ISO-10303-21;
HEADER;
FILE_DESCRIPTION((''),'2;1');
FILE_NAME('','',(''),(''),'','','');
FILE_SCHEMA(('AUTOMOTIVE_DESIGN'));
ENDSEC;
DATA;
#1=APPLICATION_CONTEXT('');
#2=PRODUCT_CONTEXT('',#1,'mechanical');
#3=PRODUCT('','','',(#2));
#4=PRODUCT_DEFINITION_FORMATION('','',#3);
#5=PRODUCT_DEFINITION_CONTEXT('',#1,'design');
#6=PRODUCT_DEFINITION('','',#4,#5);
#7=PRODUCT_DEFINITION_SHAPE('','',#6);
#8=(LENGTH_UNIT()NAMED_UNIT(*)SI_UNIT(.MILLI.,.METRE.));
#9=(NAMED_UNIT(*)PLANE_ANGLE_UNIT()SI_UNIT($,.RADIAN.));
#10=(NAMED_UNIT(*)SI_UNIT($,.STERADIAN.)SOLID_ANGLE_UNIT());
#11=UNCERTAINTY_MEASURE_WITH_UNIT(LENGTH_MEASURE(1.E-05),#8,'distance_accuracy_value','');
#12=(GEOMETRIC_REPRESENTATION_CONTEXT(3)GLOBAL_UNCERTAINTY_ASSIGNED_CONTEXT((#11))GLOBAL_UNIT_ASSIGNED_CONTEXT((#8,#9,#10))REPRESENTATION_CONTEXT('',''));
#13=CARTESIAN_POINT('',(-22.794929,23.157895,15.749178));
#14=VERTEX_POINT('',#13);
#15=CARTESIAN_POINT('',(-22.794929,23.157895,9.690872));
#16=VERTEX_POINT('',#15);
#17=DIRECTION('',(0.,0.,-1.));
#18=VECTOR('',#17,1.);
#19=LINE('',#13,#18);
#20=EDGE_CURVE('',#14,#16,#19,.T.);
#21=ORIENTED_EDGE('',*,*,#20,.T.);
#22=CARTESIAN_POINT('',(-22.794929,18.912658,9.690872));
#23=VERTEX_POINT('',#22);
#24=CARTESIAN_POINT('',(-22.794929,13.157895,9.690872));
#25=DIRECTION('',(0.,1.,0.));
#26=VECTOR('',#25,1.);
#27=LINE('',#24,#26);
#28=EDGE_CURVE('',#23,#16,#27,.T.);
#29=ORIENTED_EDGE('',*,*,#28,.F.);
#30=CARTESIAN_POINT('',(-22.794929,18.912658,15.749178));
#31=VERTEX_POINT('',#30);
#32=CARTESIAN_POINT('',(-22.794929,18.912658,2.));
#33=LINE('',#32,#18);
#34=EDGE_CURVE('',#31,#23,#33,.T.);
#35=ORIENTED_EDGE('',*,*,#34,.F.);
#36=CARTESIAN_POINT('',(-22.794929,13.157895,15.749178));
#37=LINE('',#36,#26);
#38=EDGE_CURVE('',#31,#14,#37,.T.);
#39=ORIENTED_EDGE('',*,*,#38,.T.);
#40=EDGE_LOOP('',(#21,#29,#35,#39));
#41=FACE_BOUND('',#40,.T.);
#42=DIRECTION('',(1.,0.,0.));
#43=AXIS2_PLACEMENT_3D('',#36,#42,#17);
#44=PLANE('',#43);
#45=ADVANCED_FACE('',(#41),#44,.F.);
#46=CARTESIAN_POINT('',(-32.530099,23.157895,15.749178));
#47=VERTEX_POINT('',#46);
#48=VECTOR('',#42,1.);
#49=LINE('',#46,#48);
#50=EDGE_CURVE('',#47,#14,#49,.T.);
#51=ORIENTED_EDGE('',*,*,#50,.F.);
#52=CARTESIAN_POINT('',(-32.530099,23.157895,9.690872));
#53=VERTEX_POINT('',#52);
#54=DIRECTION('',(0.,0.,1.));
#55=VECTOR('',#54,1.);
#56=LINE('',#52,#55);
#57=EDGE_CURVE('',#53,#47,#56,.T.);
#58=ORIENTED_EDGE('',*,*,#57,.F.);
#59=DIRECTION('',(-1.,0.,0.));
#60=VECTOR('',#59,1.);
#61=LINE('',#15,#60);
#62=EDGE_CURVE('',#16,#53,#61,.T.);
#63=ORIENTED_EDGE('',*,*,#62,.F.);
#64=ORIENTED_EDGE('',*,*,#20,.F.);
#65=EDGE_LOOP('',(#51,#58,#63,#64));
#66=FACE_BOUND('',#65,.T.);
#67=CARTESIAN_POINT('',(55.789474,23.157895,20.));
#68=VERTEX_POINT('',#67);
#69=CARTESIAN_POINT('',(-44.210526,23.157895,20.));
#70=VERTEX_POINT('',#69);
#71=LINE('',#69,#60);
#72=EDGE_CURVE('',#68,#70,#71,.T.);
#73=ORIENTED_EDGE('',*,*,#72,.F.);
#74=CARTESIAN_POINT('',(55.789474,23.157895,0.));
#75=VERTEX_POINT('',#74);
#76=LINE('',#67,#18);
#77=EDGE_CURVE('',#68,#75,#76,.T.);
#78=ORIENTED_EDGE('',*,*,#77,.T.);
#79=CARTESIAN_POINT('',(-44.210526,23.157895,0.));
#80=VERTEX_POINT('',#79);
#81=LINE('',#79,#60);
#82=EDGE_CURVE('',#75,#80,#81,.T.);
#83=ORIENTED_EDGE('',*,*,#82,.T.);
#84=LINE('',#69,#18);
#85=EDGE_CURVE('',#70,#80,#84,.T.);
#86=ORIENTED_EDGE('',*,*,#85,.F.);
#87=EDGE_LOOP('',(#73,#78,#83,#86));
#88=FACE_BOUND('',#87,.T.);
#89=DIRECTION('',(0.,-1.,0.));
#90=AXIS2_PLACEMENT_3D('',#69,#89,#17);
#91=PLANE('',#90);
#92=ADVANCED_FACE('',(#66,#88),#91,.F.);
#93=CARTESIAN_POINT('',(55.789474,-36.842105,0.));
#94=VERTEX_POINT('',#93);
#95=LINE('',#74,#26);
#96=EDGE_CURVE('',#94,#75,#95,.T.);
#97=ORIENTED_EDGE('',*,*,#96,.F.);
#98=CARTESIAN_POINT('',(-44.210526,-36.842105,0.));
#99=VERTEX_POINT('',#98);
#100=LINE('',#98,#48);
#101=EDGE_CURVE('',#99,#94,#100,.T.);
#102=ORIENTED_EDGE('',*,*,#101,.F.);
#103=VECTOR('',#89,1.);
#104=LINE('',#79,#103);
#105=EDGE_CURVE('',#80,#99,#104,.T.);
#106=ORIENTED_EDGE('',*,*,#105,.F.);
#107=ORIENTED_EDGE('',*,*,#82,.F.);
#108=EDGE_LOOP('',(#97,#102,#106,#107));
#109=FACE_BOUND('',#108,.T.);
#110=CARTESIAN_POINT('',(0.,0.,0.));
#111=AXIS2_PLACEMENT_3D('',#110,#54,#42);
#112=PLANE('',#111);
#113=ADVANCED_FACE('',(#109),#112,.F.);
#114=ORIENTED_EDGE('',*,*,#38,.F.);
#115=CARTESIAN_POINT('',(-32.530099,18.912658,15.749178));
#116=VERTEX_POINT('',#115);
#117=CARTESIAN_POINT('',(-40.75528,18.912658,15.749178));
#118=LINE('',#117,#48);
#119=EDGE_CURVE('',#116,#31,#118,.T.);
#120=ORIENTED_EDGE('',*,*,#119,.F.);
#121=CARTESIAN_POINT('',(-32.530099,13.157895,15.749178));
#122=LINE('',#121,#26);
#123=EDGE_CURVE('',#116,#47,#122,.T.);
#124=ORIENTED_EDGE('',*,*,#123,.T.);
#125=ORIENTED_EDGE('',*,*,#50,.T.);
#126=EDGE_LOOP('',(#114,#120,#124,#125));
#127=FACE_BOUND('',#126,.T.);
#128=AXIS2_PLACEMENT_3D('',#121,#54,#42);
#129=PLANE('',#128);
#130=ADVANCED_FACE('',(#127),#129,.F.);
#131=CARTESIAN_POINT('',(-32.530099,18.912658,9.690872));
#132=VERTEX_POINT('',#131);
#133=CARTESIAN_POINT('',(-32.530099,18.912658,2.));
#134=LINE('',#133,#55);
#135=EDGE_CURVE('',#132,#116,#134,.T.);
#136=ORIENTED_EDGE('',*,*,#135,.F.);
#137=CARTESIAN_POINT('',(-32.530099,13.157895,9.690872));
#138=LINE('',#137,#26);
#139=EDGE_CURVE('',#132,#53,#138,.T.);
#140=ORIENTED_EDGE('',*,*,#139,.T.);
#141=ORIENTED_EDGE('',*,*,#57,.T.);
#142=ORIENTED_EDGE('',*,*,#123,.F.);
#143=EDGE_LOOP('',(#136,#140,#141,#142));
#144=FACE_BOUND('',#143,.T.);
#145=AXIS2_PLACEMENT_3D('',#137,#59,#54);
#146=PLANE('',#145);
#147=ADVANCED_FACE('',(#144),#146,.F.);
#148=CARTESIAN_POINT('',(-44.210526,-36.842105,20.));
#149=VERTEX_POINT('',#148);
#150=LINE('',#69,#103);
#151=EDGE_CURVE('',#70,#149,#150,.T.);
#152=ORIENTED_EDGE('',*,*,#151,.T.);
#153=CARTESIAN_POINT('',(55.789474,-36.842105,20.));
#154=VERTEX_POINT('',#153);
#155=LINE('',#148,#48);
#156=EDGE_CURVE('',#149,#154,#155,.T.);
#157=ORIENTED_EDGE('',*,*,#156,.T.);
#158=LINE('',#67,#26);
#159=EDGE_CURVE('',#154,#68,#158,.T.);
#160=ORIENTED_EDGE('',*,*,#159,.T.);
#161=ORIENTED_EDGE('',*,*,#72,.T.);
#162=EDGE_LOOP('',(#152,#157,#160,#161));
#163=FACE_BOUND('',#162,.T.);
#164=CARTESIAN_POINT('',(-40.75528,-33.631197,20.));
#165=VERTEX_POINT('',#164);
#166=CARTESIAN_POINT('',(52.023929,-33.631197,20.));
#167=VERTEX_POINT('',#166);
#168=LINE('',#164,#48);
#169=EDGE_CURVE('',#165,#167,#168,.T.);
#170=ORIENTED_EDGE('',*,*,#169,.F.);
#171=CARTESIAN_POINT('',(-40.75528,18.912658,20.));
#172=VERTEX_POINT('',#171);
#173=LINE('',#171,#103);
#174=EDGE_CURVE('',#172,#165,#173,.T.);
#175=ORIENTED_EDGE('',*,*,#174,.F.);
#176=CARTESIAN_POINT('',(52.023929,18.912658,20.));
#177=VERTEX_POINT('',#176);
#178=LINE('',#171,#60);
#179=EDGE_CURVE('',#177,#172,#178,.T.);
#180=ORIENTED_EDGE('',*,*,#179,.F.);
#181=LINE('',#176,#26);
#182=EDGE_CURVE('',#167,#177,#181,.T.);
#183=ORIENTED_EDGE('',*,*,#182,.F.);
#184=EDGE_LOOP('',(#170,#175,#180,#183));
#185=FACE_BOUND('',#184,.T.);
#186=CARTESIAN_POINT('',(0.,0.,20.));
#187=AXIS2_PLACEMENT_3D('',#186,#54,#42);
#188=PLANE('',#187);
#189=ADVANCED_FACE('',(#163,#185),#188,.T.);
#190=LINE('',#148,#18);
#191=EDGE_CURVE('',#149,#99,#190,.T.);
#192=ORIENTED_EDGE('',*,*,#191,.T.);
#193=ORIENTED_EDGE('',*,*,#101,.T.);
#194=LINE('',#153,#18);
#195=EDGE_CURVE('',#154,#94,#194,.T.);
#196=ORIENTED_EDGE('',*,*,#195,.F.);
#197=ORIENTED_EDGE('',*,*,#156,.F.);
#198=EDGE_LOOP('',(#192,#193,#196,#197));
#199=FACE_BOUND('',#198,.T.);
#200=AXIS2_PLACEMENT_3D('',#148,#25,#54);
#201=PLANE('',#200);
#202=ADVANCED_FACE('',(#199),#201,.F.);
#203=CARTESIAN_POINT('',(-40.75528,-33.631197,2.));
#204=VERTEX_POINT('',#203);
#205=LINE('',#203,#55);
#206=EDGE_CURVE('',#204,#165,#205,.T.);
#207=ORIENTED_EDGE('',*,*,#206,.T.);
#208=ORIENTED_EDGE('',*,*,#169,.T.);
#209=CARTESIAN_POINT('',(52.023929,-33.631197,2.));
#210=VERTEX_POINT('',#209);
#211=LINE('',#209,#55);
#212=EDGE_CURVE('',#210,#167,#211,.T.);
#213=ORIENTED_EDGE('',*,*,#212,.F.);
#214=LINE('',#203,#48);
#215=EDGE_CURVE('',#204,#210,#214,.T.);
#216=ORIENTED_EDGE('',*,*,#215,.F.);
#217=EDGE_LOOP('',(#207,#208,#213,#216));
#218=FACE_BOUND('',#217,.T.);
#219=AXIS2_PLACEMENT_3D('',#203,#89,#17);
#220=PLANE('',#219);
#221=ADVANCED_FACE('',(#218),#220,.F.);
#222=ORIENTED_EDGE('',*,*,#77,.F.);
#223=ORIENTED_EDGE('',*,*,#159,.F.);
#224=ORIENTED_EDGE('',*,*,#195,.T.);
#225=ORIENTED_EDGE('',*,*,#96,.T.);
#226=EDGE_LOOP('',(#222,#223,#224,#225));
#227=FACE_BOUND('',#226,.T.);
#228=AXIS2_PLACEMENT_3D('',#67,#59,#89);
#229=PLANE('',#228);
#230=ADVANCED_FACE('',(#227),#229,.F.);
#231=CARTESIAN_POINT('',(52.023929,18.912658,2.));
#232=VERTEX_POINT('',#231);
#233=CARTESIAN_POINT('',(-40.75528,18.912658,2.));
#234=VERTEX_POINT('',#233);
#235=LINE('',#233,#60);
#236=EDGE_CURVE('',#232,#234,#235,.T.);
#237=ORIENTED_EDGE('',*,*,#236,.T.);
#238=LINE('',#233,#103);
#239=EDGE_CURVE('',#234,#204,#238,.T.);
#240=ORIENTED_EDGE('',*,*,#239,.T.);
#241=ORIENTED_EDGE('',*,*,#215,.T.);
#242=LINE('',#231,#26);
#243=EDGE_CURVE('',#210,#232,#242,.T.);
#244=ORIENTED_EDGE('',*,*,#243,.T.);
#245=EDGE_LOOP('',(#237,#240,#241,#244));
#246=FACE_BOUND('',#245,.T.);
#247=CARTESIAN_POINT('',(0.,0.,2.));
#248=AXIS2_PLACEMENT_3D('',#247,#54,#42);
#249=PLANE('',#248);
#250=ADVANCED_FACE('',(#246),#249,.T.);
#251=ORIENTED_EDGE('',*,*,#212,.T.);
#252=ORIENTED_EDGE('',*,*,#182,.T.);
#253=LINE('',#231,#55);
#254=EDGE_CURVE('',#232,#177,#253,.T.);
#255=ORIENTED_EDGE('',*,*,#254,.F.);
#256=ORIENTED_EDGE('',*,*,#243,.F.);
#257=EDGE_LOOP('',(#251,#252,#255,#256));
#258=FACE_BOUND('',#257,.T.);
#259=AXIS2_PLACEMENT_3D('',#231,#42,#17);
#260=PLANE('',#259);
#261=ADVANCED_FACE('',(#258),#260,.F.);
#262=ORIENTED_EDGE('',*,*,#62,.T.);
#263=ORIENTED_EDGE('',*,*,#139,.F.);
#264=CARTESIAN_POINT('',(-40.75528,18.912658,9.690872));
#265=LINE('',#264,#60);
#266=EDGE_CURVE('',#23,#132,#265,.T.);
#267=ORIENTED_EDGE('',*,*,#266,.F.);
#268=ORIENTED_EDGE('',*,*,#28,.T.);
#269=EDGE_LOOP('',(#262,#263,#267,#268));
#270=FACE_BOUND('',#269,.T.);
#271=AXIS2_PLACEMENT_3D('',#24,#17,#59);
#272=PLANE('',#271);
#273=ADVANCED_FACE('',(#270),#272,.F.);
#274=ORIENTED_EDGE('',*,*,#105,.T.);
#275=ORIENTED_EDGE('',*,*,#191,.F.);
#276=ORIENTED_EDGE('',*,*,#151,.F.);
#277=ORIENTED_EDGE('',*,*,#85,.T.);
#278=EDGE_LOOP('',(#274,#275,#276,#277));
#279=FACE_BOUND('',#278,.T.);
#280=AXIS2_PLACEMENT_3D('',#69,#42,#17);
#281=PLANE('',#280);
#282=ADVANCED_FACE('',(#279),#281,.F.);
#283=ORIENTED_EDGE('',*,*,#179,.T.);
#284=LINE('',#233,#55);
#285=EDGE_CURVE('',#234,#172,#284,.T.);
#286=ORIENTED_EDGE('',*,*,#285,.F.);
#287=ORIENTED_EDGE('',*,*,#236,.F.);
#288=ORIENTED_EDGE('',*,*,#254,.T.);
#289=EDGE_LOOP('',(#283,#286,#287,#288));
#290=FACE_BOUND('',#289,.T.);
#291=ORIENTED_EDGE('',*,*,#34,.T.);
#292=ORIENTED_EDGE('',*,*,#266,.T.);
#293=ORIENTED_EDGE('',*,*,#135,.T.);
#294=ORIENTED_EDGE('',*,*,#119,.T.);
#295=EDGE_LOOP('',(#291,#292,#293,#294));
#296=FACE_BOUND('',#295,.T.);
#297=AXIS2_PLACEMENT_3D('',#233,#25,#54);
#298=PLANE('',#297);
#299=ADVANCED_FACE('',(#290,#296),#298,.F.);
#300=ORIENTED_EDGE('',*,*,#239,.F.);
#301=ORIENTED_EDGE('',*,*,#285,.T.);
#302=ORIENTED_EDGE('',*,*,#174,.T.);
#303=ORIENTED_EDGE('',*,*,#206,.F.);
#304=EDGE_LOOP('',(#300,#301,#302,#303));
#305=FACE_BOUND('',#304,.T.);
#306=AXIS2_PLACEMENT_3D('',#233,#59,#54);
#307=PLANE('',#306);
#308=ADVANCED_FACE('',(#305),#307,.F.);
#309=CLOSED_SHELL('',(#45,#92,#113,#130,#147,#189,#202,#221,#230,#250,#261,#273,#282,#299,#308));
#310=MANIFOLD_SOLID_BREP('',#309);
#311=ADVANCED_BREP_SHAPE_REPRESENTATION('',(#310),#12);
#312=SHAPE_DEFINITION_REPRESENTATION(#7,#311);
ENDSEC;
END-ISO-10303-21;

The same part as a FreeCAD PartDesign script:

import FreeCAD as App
import Part
import Sketcher
from FreeCAD import Vector
Q = App.Units.Quantity

doc = App.newDocument("Part")
params = doc.addObject("Spreadsheet::Sheet", "Params")
for row, (alias, value) in enumerate([
    ("sketch1_width", "100 mm"),
    ("sketch1_height", "60 mm"),
    ("pad1_length", "20 mm"),
    ("pocket1_length", "18 mm"),
    ("pocket2_length", "10 mm"),
], start=1):
    params.set(f"A{row}", alias)
    params.set(f"B{row}", "=" + value)
    params.setAlias(f"B{row}", alias)

body = doc.addObject("PartDesign::Body", "Body")

sketch1 = doc.addObject("Sketcher::SketchObject", "Sketch")
body.addObject(sketch1)
sketch1.AttachmentSupport = (doc.XY_Plane, [""])
sketch1.MapMode = "FlatFace"
sketch1.addGeometry(Part.LineSegment(Vector(-44, 23, 0), Vector(-44, -37, 0)), False)
sketch1.addGeometry(Part.LineSegment(Vector(-44, -37, 0), Vector(56, -37, 0)), False)
sketch1.addGeometry(Part.LineSegment(Vector(56, -37, 0), Vector(56, 23, 0)), False)
sketch1.addGeometry(Part.LineSegment(Vector(56, 23, 0), Vector(-44, 23, 0)), False)
sketch1.addConstraint(Sketcher.Constraint("Coincident", 0, 2, 1, 1))
sketch1.addConstraint(Sketcher.Constraint("Coincident", 1, 2, 2, 1))
sketch1.addConstraint(Sketcher.Constraint("Coincident", 2, 2, 3, 1))
sketch1.addConstraint(Sketcher.Constraint("Coincident", 3, 2, 0, 1))
sketch1.addConstraint(Sketcher.Constraint("Vertical", 0))
sketch1.addConstraint(Sketcher.Constraint("Horizontal", 1))
sketch1.addConstraint(Sketcher.Constraint("Vertical", 2))
sketch1.addConstraint(Sketcher.Constraint("Horizontal", 3))
sketch1.addConstraint(Sketcher.Constraint("DistanceX", 1, 1, 1, 2, Q("100 mm")))
sketch1.addConstraint(Sketcher.Constraint("DistanceY", 0, 2, 0, 1, Q("60 mm")))
sketch1.addConstraint(Sketcher.Constraint("DistanceX", 0, 2, -1, 1, Q("44.210526 mm")))
sketch1.addConstraint(Sketcher.Constraint("DistanceY", 0, 2, -1, 1, Q("36.842105 mm")))
sketch1.setExpression("Constraints[8]", "Params.sketch1_width")
sketch1.setExpression("Constraints[9]", "Params.sketch1_height")
pad1 = doc.addObject("PartDesign::Pad", "Pad")
body.addObject(pad1)
pad1.Profile = sketch1
pad1.setExpression("Length", "Params.pad1_length")

sketch2 = doc.addObject("Sketcher::SketchObject", "Sketch001")
body.addObject(sketch2)
sketch2.AttachmentSupport = (doc.XY_Plane, [""])
sketch2.MapMode = "FlatFace"
sketch2.AttachmentOffset = App.Placement(Vector(0, 0, 20), App.Rotation())
sketch2.addGeometry(Part.LineSegment(Vector(-41, 19, 0), Vector(-41, -34, 0)), False)
sketch2.addGeometry(Part.LineSegment(Vector(-41, -34, 0), Vector(52, -34, 0)), False)
sketch2.addGeometry(Part.LineSegment(Vector(52, -34, 0), Vector(52, 19, 0)), False)
sketch2.addGeometry(Part.LineSegment(Vector(52, 19, 0), Vector(-41, 19, 0)), False)
sketch2.addConstraint(Sketcher.Constraint("Coincident", 0, 2, 1, 1))
sketch2.addConstraint(Sketcher.Constraint("Coincident", 1, 2, 2, 1))
sketch2.addConstraint(Sketcher.Constraint("Coincident", 2, 2, 3, 1))
sketch2.addConstraint(Sketcher.Constraint("Coincident", 3, 2, 0, 1))
sketch2.addConstraint(Sketcher.Constraint("Vertical", 0))
sketch2.addConstraint(Sketcher.Constraint("Horizontal", 1))
sketch2.addConstraint(Sketcher.Constraint("Vertical", 2))
sketch2.addConstraint(Sketcher.Constraint("Horizontal", 3))
sketch2.addConstraint(Sketcher.Constraint("DistanceX", 1, 1, 1, 2, Q("92.779209 mm")))
sketch2.addConstraint(Sketcher.Constraint("DistanceY", 0, 2, 0, 1, Q("52.543855 mm")))
sketch2.addConstraint(Sketcher.Constraint("DistanceX", 0, 2, -1, 1, Q("40.75528 mm")))
sketch2.addConstraint(Sketcher.Constraint("DistanceY", -1, 1, 2, 2, Q("18.912658 mm")))
pocket1 = doc.addObject("PartDesign::Pocket", "Pocket")
body.addObject(pocket1)
pocket1.Profile = sketch2
pocket1.setExpression("Length", "Params.pocket1_length")

sketch3 = doc.addObject("Sketcher::SketchObject", "Sketch002")
body.addObject(sketch3)
sketch3.AttachmentSupport = (doc.XZ_Plane, [""])
sketch3.MapMode = "FlatFace"
sketch3.AttachmentOffset = App.Placement(Vector(0, 0, -23.157895), App.Rotation())
sketch3.addGeometry(Part.LineSegment(Vector(-33, 10, 0), Vector(-33, 16, 0)), False)
sketch3.addGeometry(Part.LineSegment(Vector(-33, 16, 0), Vector(-23, 16, 0)), False)
sketch3.addGeometry(Part.LineSegment(Vector(-23, 16, 0), Vector(-23, 10, 0)), False)
sketch3.addGeometry(Part.LineSegment(Vector(-23, 10, 0), Vector(-33, 10, 0)), False)
sketch3.addConstraint(Sketcher.Constraint("Coincident", 0, 2, 1, 1))
sketch3.addConstraint(Sketcher.Constraint("Coincident", 1, 2, 2, 1))
sketch3.addConstraint(Sketcher.Constraint("Coincident", 2, 2, 3, 1))
sketch3.addConstraint(Sketcher.Constraint("Coincident", 3, 2, 0, 1))
sketch3.addConstraint(Sketcher.Constraint("Vertical", 0))
sketch3.addConstraint(Sketcher.Constraint("Horizontal", 1))
sketch3.addConstraint(Sketcher.Constraint("Vertical", 2))
sketch3.addConstraint(Sketcher.Constraint("Horizontal", 3))
sketch3.addConstraint(Sketcher.Constraint("DistanceX", 1, 1, 1, 2, Q("9.73517 mm")))
sketch3.addConstraint(Sketcher.Constraint("DistanceX", 0, 2, -1, 1, Q("32.530099 mm")))
sketch3.addConstraint(Sketcher.Constraint("DistanceY", 0, 1, 0, 2, Q("6.058306 mm")))
sketch3.addConstraint(Sketcher.Constraint("DistanceY", -1, 1, 2, 2, Q("9.690872 mm")))
pocket2 = doc.addObject("PartDesign::Pocket", "Pocket001")
body.addObject(pocket2)
pocket2.Profile = sketch3
pocket2.setExpression("Length", "Params.pocket2_length")
pocket2.Reversed = True

doc.recompute()
